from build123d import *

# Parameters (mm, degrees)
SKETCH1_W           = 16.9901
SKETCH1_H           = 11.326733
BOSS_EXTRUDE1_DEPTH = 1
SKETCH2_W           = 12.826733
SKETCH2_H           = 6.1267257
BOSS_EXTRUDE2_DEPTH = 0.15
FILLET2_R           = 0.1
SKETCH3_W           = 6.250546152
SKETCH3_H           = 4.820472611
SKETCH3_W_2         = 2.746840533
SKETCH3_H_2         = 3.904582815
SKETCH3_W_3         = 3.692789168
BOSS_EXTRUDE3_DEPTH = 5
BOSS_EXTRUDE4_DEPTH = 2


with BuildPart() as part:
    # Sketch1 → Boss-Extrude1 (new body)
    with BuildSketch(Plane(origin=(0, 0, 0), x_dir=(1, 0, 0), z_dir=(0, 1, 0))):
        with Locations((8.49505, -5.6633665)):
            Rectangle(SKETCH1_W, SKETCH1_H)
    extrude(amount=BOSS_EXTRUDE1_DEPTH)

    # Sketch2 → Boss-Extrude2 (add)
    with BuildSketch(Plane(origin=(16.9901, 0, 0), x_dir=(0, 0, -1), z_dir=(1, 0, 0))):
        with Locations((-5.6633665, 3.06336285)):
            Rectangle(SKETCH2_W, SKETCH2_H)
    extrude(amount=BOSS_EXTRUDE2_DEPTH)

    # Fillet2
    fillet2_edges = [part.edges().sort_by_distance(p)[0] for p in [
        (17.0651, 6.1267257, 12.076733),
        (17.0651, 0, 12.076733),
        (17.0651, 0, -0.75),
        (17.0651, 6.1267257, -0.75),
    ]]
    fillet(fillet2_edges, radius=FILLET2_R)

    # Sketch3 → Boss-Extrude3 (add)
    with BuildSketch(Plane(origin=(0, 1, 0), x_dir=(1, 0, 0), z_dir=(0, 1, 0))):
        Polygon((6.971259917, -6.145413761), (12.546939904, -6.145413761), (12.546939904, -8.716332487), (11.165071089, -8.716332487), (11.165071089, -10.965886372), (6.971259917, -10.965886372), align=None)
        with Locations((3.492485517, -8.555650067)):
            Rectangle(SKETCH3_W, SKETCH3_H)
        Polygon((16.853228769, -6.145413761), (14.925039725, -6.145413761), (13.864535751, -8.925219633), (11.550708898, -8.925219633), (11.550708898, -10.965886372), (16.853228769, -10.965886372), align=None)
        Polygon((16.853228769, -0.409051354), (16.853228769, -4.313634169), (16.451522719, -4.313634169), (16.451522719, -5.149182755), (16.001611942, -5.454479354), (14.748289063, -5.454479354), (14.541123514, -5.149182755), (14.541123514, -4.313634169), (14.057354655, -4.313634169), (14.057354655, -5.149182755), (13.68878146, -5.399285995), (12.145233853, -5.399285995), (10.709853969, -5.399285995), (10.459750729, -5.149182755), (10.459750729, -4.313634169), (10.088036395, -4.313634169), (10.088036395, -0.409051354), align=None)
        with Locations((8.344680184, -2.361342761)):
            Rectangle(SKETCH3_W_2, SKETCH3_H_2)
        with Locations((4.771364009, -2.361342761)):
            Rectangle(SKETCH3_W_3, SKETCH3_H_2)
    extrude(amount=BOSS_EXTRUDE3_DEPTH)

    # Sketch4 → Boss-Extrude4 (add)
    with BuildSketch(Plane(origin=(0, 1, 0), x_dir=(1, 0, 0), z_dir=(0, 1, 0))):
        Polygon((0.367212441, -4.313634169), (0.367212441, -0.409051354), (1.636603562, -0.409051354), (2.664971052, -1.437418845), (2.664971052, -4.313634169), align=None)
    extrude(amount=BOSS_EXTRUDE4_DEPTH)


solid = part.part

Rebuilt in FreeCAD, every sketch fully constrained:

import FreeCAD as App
import Part
import Sketcher
Q = App.Units.Quantity


def edges_at(feature, points):
    """Names of the edges that pass closest to the given points."""
    edges = feature.Shape.Edges
    near = lambda p: min(range(len(edges)), key=lambda i: edges[i].distToShape(Part.Vertex(*p))[0])
    return sorted({f"Edge{near(p) + 1}" for p in points})

doc = App.newDocument("Part")
params = doc.addObject("Spreadsheet::Sheet", "Params")
for row, (alias, value) in enumerate([
    ("pad1_length", "1 mm"),
    ("pad2_length", "0.15 mm"),
    ("fillet_radius", "0.1 mm"),
    ("pad3_length", "5 mm"),
    ("pad4_length", "2 mm"),
], start=1):
    params.set(f"A{row}", alias)
    params.set(f"B{row}", "=" + value)
    params.setAlias(f"B{row}", alias)

body = doc.addObject("PartDesign::Body", "Body")

# Sketch on XZ plane
sketch1 = body.newObject("Sketcher::SketchObject", "Sketch")
sketch1.AttachmentSupport = (doc.getObject("XZ_Plane"), [""])
sketch1.MapMode = "FlatFace"
sketch1.addGeometry([
    Part.LineSegment(App.Vector(0, 0, 0), App.Vector(0, 11.326733, 0)),
    Part.LineSegment(App.Vector(0, 11.326733, 0), App.Vector(16.9901, 11.326733, 0)),
    Part.LineSegment(App.Vector(16.9901, 11.326733, 0), App.Vector(16.9901, 0, 0)),
    Part.LineSegment(App.Vector(16.9901, 0, 0), App.Vector(0, 0, 0)),
], False)
sketch1.addConstraint([
    Sketcher.Constraint("Coincident", 0, 2, 1, 1),
    Sketcher.Constraint("Coincident", 1, 2, 2, 1),
    Sketcher.Constraint("Coincident", 2, 2, 3, 1),
    Sketcher.Constraint("Coincident", 3, 2, 0, 1),
    Sketcher.Constraint("Vertical", 0),
    Sketcher.Constraint("Horizontal", 1),
    Sketcher.Constraint("Vertical", 2),
    Sketcher.Constraint("Horizontal", 3),
    Sketcher.Constraint("Coincident", 3, 2, -1, 1),
    Sketcher.Constraint("DistanceX", 1, 1, 1, 2, 16.9901),
    Sketcher.Constraint("DistanceY", 0, 1, 0, 2, 11.326733),
])
pad1 = body.newObject("PartDesign::Pad", "Pad")
pad1.Profile = sketch1
pad1.setExpression("Length", "Params.pad1_length")
pad1.Reversed = True

# Sketch on YZ plane
sketch2 = body.newObject("Sketcher::SketchObject", "Sketch001")
sketch2.AttachmentSupport = (doc.getObject("YZ_Plane"), [""])
sketch2.MapMode = "FlatFace"
sketch2.AttachmentOffset = App.Placement(App.Vector(0, 0, 16.9901), App.Rotation())
sketch2.addGeometry([
    Part.LineSegment(App.Vector(6.126726, 12.076733, 0), App.Vector(0, 12.076733, 0)),
    Part.LineSegment(App.Vector(0, 12.076733, 0), App.Vector(0, -0.75, 0)),
    Part.LineSegment(App.Vector(0, -0.75, 0), App.Vector(6.126726, -0.75, 0)),
    Part.LineSegment(App.Vector(6.126726, -0.75, 0), App.Vector(6.126726, 12.076733, 0)),
], False)
sketch2.addConstraint([
    Sketcher.Constraint("Coincident", 0, 2, 1, 1),
    Sketcher.Constraint("Coincident", 1, 2, 2, 1),
    Sketcher.Constraint("Coincident", 2, 2, 3, 1),
    Sketcher.Constraint("Coincident", 3, 2, 0, 1),
    Sketcher.Constraint("Horizontal", 0),
    Sketcher.Constraint("Vertical", 1),
    Sketcher.Constraint("Horizontal", 2),
    Sketcher.Constraint("Vertical", 3),
    Sketcher.Constraint("PointOnObject", 0, 2, -2),
    Sketcher.Constraint("DistanceY", 1, 2, -1, 1, 0.75),
    Sketcher.Constraint("DistanceX", 0, 2, 0, 1, 6.126726),
    Sketcher.Constraint("DistanceY", 1, 2, 1, 1, 12.826733),
])
pad2 = body.newObject("PartDesign::Pad", "Pad001")
pad2.Profile = sketch2
pad2.setExpression("Length", "Params.pad2_length")
doc.recompute()

fillet = body.newObject("PartDesign::Fillet", "Fillet")
fillet.Base = (pad2, edges_at(pad2, [
    (17.065, 6.127, 12.077),
    (17.065, 0, 12.077),
    (17.065, 0, -0.75),
    (17.065, 6.127, -0.75),
]))
fillet.setExpression("Radius", "Params.fillet_radius")

# Sketch on XZ plane
sketch3 = body.newObject("Sketcher::SketchObject", "Sketch002")
sketch3.AttachmentSupport = (doc.getObject("XZ_Plane"), [""])
sketch3.MapMode = "FlatFace"
sketch3.AttachmentOffset = App.Placement(App.Vector(0, 0, -1), App.Rotation())
sketch3.addGeometry([
    Part.LineSegment(App.Vector(12.54694, 6.145414, 0), App.Vector(6.97126, 6.145414, 0)),  # 0
    Part.LineSegment(App.Vector(6.97126, 6.145414, 0), App.Vector(6.97126, 10.965886, 0)),  # 1
    Part.LineSegment(App.Vector(6.97126, 10.965886, 0), App.Vector(11.165071, 10.965886, 0)),  # 2
    Part.LineSegment(App.Vector(11.165071, 10.965886, 0), App.Vector(11.165071, 8.716332, 0)),  # 3
    Part.LineSegment(App.Vector(11.165071, 8.716332, 0), App.Vector(12.54694, 8.716332, 0)),  # 4
    Part.LineSegment(App.Vector(12.54694, 8.716332, 0), App.Vector(12.54694, 6.145414, 0)),  # 5
    Part.LineSegment(App.Vector(0.367212, 6.145414, 0), App.Vector(0.367212, 10.965886, 0)),  # 6
    Part.LineSegment(App.Vector(0.367212, 10.965886, 0), App.Vector(6.617759, 10.965886, 0)),  # 7
    Part.LineSegment(App.Vector(6.617759, 10.965886, 0), App.Vector(6.617759, 6.145414, 0)),  # 8
    Part.LineSegment(App.Vector(6.617759, 6.145414, 0), App.Vector(0.367212, 6.145414, 0)),  # 9
    Part.LineSegment(App.Vector(16.853229, 6.145414, 0), App.Vector(14.92504, 6.145414, 0)),  # 10
    Part.LineSegment(App.Vector(14.92504, 6.145414, 0), App.Vector(13.864536, 8.92522, 0)),  # 11
    Part.LineSegment(App.Vector(13.864536, 8.92522, 0), App.Vector(11.550709, 8.92522, 0)),  # 12
    Part.LineSegment(App.Vector(11.550709, 8.92522, 0), App.Vector(11.550709, 10.965886, 0)),  # 13
    Part.LineSegment(App.Vector(11.550709, 10.965886, 0), App.Vector(16.853229, 10.965886, 0)),  # 14
    Part.LineSegment(App.Vector(16.853229, 10.965886, 0), App.Vector(16.853229, 6.145414, 0)),  # 15
    Part.LineSegment(App.Vector(16.853229, 4.313634, 0), App.Vector(16.853229, 0.409051, 0)),  # 16
    Part.LineSegment(App.Vector(16.853229, 0.409051, 0), App.Vector(10.088036, 0.409051, 0)),  # 17
    Part.LineSegment(App.Vector(10.088036, 0.409051, 0), App.Vector(10.088036, 4.313634, 0)),  # 18
    Part.LineSegment(App.Vector(10.088036, 4.313634, 0), App.Vector(10.459751, 4.313634, 0)),  # 19
    Part.LineSegment(App.Vector(10.459751, 4.313634, 0), App.Vector(10.459751, 5.149183, 0)),  # 20
    Part.LineSegment(App.Vector(10.459751, 5.149183, 0), App.Vector(10.709854, 5.399286, 0)),  # 21
    Part.LineSegment(App.Vector(10.709854, 5.399286, 0), App.Vector(13.688781, 5.399286, 0)),  # 22
    Part.LineSegment(App.Vector(13.688781, 5.399286, 0), App.Vector(14.057355, 5.149183, 0)),  # 23
    Part.LineSegment(App.Vector(14.057355, 5.149183, 0), App.Vector(14.057355, 4.313634, 0)),  # 24
    Part.LineSegment(App.Vector(14.057355, 4.313634, 0), App.Vector(14.541124, 4.313634, 0)),  # 25
    Part.LineSegment(App.Vector(14.541124, 4.313634, 0), App.Vector(14.541124, 5.149183, 0)),  # 26
    Part.LineSegment(App.Vector(14.541124, 5.149183, 0), App.Vector(14.748289, 5.454479, 0)),  # 27
    Part.LineSegment(App.Vector(14.748289, 5.454479, 0), App.Vector(16.001612, 5.454479, 0)),  # 28
    Part.LineSegment(App.Vector(16.001612, 5.454479, 0), App.Vector(16.451523, 5.149183, 0)),  # 29
    Part.LineSegment(App.Vector(16.451523, 5.149183, 0), App.Vector(16.451523, 4.313634, 0)),  # 30
    Part.LineSegment(App.Vector(16.451523, 4.313634, 0), App.Vector(16.853229, 4.313634, 0)),  # 31
    Part.LineSegment(App.Vector(6.97126, 0.409051, 0), App.Vector(6.97126, 4.313634, 0)),  # 32
    Part.LineSegment(App.Vector(6.97126, 4.313634, 0), App.Vector(9.7181, 4.313634, 0)),  # 33
    Part.LineSegment(App.Vector(9.7181, 4.313634, 0), App.Vector(9.7181, 0.409051, 0)),  # 34
    Part.LineSegment(App.Vector(9.7181, 0.409051, 0), App.Vector(6.97126, 0.409051, 0)),  # 35
    Part.LineSegment(App.Vector(2.924969, 0.409051, 0), App.Vector(2.924969, 4.313634, 0)),  # 36
    Part.LineSegment(App.Vector(2.924969, 4.313634, 0), App.Vector(6.617759, 4.313634, 0)),  # 37
    Part.LineSegment(App.Vector(6.617759, 4.313634, 0), App.Vector(6.617759, 0.409051, 0)),  # 38
    Part.LineSegment(App.Vector(6.617759, 0.409051, 0), App.Vector(2.924969, 0.409051, 0)),  # 39
], False)
sketch3.addConstraint([
    Sketcher.Constraint("Coincident", 0, 2, 1, 1),
    Sketcher.Constraint("Coincident", 1, 2, 2, 1),
    Sketcher.Constraint("Coincident", 2, 2, 3, 1),
    Sketcher.Constraint("Coincident", 3, 2, 4, 1),
    Sketcher.Constraint("Coincident", 4, 2, 5, 1),
    Sketcher.Constraint("Coincident", 5, 2, 0, 1),
    Sketcher.Constraint("Coincident", 6, 2, 7, 1),
    Sketcher.Constraint("Coincident", 7, 2, 8, 1),
    Sketcher.Constraint("Coincident", 8, 2, 9, 1),
    Sketcher.Constraint("Coincident", 9, 2, 6, 1),
    Sketcher.Constraint("Coincident", 10, 2, 11, 1),
    Sketcher.Constraint("Coincident", 11, 2, 12, 1),
    Sketcher.Constraint("Coincident", 12, 2, 13, 1),
    Sketcher.Constraint("Coincident", 13, 2, 14, 1),
    Sketcher.Constraint("Coincident", 14, 2, 15, 1),
    Sketcher.Constraint("Coincident", 15, 2, 10, 1),
    Sketcher.Constraint("Coincident", 16, 2, 17, 1),
    Sketcher.Constraint("Coincident", 17, 2, 18, 1),
    Sketcher.Constraint("Coincident", 18, 2, 19, 1),
    Sketcher.Constraint("Coincident", 19, 2, 20, 1),
    Sketcher.Constraint("Coincident", 20, 2, 21, 1),
    Sketcher.Constraint("Coincident", 21, 2, 22, 1),
    Sketcher.Constraint("Coincident", 22, 2, 23, 1),
    Sketcher.Constraint("Coincident", 23, 2, 24, 1),
    Sketcher.Constraint("Coincident", 24, 2, 25, 1),
    Sketcher.Constraint("Coincident", 25, 2, 26, 1),
    Sketcher.Constraint("Coincident", 26, 2, 27, 1),
    Sketcher.Constraint("Coincident", 27, 2, 28, 1),
    Sketcher.Constraint("Coincident", 28, 2, 29, 1),
    Sketcher.Constraint("Coincident", 29, 2, 30, 1),
    Sketcher.Constraint("Coincident", 30, 2, 31, 1),
    Sketcher.Constraint("Coincident", 31, 2, 16, 1),
    Sketcher.Constraint("Coincident", 32, 2, 33, 1),
    Sketcher.Constraint("Coincident", 33, 2, 34, 1),
    Sketcher.Constraint("Coincident", 34, 2, 35, 1),
    Sketcher.Constraint("Coincident", 35, 2, 32, 1),
    Sketcher.Constraint("Coincident", 36, 2, 37, 1),
    Sketcher.Constraint("Coincident", 37, 2, 38, 1),
    Sketcher.Constraint("Coincident", 38, 2, 39, 1),
    Sketcher.Constraint("Coincident", 39, 2, 36, 1),
    Sketcher.Constraint("Horizontal", 0),
    Sketcher.Constraint("Vertical", 1),
    Sketcher.Constraint("Horizontal", 2),
    Sketcher.Constraint("Vertical", 3),
    Sketcher.Constraint("Horizontal", 4),
    Sketcher.Constraint("Vertical", 5),
    Sketcher.Constraint("Vertical", 6),
    Sketcher.Constraint("Horizontal", 7),
    Sketcher.Constraint("Vertical", 8),
    Sketcher.Constraint("Horizontal", 9),
    Sketcher.Constraint("Horizontal", 10),
    Sketcher.Constraint("Horizontal", 12),
    Sketcher.Constraint("Vertical", 13),
    Sketcher.Constraint("Horizontal", 14),
    Sketcher.Constraint("Vertical", 15),
    Sketcher.Constraint("Vertical", 16),
    Sketcher.Constraint("Horizontal", 17),
    Sketcher.Constraint("Vertical", 18),
    Sketcher.Constraint("Horizontal", 19),
    Sketcher.Constraint("Vertical", 20),
    Sketcher.Constraint("Horizontal", 22),
    Sketcher.Constraint("Vertical", 24),
    Sketcher.Constraint("Horizontal", 25),
    Sketcher.Constraint("Vertical", 26),
    Sketcher.Constraint("Horizontal", 28),
    Sketcher.Constraint("Vertical", 30),
    Sketcher.Constraint("Horizontal", 31),
    Sketcher.Constraint("Vertical", 32),
    Sketcher.Constraint("Horizontal", 33),
    Sketcher.Constraint("Vertical", 34),
    Sketcher.Constraint("Horizontal", 35),
    Sketcher.Constraint("Vertical", 36),
    Sketcher.Constraint("Horizontal", 37),
    Sketcher.Constraint("Vertical", 38),
    Sketcher.Constraint("Horizontal", 39),
    Sketcher.Constraint("Perpendicular", 23, 27),
    Sketcher.Constraint("Perpendicular", 27, 29),
    Sketcher.Constraint("Horizontal", 2, 2, 6, 2),
    Sketcher.Constraint("Horizontal", 5, 2, 8, 2),
    Sketcher.Constraint("Horizontal", 9, 2, 10, 2),
    Sketcher.Constraint("Horizontal", 7, 2, 13, 2),
    Sketcher.Constraint("Horizontal", 20, 2, 23, 2),
    Sketcher.Constraint("Horizontal", 19, 2, 24, 2),
    Sketcher.Constraint("Horizontal", 23, 2, 26, 2),
    Sketcher.Constraint("Horizontal", 26, 2, 29, 2),
    Sketcher.Constraint("Horizontal", 25, 2, 30, 2),
    Sketcher.Constraint("Horizontal", 31, 2, 32, 2),
    Sketcher.Constraint("Horizontal", 17, 2, 34, 2),
    Sketcher.Constraint("Horizontal", 33, 2, 36, 2),
    Sketcher.Constraint("Horizontal", 35, 2, 38, 2),
    Sketcher.Constraint("Vertical", 15, 2, 16, 2),
    Sketcher.Constraint("Vertical", 1, 2, 32, 2),
    Sketcher.Constraint("Vertical", 8, 2, 37, 2),
    Sketcher.Constraint("Angle", 21, Q("45 deg")),
    Sketcher.Constraint("Distance", 21, 0.353699),
    Sketcher.Constraint("DistanceX", 0, 2, 0, 1, 5.57568),
    Sketcher.Constraint("DistanceX", 2, 1, 2, 2, 4.193811),
    Sketcher.Constraint("DistanceX", 10, 2, 10, 1, 1.928189),
    Sketcher.Constraint("DistanceX", 14, 1, 14, 2, 5.30252),
    Sketcher.Constraint("DistanceX", 25, 1, 25, 2, 0.483769),
    Sketcher.Constraint("DistanceX", 33, 1, 33, 2, 2.746841),
    Sketcher.Constraint("DistanceX", 37, 1, 37, 2, 3.692789),
    Sketcher.Constraint("DistanceY", 5, 2, 5, 1, 2.570919),
    Sketcher.Constraint("DistanceY", 20, 1, 20, 2, 0.835549),
    Sketcher.Constraint("DistanceX", -1, 1, 33, 2, 9.7181),
    Sketcher.Constraint("DistanceX", 7, 2, 1, 2, 0.353501),
    Sketcher.Constraint("DistanceX", 5, 2, 10, 2, 2.3781),
    Sketcher.Constraint("DistanceY", 18, 2, 3, 2, 4.402698),
    Sketcher.Constraint("DistanceX", 21, 2, 23, 2, 3.347501),
    Sketcher.Constraint("DistanceX", 26, 2, 29, 2, 1.910399),
    Sketcher.Constraint("Distance", 11, 2.975229),
    Sketcher.Constraint("Distance", 23, 0.445419),
    Sketcher.Constraint("Distance", 27, 0.368949),
    Sketcher.Constraint("DistanceX", 7, 1, 7, 2, 6.250546),
    Sketcher.Constraint("DistanceX", 12, 2, 12, 1, 2.313827),
    Sketcher.Constraint("DistanceX", 17, 2, 17, 1, 6.765192),
    Sketcher.Constraint("DistanceX", 19, 1, 19, 2, 0.371714),
    Sketcher.Constraint("DistanceY", 1, 1, 1, 2, 4.820473),
    Sketcher.Constraint("DistanceY", 16, 2, 16, 1, 3.904583),
    Sketcher.Constraint("DistanceY", -1, 1, 11, 2, 8.92522),
])
pad3 = body.newObject("PartDesign::Pad", "Pad002")
pad3.Profile = sketch3
pad3.setExpression("Length", "Params.pad3_length")
pad3.Reversed = True

# Sketch on XZ plane
sketch4 = body.newObject("Sketcher::SketchObject", "Sketch003")
sketch4.AttachmentSupport = (doc.getObject("XZ_Plane"), [""])
sketch4.MapMode = "FlatFace"
sketch4.AttachmentOffset = App.Placement(App.Vector(0, 0, -1), App.Rotation())
sketch4.addGeometry([
    Part.LineSegment(App.Vector(0.367212, 0.409051, 0), App.Vector(0.367212, 4.313634, 0)),  # 0
    Part.LineSegment(App.Vector(0.367212, 4.313634, 0), App.Vector(2.664971, 4.313634, 0)),  # 1
    Part.LineSegment(App.Vector(2.664971, 4.313634, 0), App.Vector(2.664971, 1.437419, 0)),  # 2
    Part.LineSegment(App.Vector(2.664971, 1.437419, 0), App.Vector(1.636604, 0.409051, 0)),  # 3
    Part.LineSegment(App.Vector(1.636604, 0.409051, 0), App.Vector(0.367212, 0.409051, 0)),  # 4
], False)
sketch4.addConstraint([
    Sketcher.Constraint("Coincident", 0, 2, 1, 1),
    Sketcher.Constraint("Coincident", 1, 2, 2, 1),
    Sketcher.Constraint("Coincident", 2, 2, 3, 1),
    Sketcher.Constraint("Coincident", 3, 2, 4, 1),
    Sketcher.Constraint("Coincident", 4, 2, 0, 1),
    Sketcher.Constraint("Vertical", 0),
    Sketcher.Constraint("Horizontal", 1),
    Sketcher.Constraint("Vertical", 2),
    Sketcher.Constraint("Horizontal", 4),
    Sketcher.Constraint("Angle", 3, Q("-135 deg")),
    Sketcher.Constraint("DistanceX", 1, 1, 1, 2, 2.297759),
    Sketcher.Constraint("DistanceX", 4, 2, 4, 1, 1.269391),
    Sketcher.Constraint("DistanceY", 0, 1, 0, 2, 3.904583),
    Sketcher.Constraint("DistanceX", -1, 1, 1, 2, 2.664971),
    Sketcher.Constraint("DistanceY", -1, 1, 2, 2, 1.437419),
])
pad4 = body.newObject("PartDesign::Pad", "Pad003")
pad4.Profile = sketch4
pad4.setExpression("Length", "Params.pad4_length")
pad4.Reversed = True

doc.recompute()
